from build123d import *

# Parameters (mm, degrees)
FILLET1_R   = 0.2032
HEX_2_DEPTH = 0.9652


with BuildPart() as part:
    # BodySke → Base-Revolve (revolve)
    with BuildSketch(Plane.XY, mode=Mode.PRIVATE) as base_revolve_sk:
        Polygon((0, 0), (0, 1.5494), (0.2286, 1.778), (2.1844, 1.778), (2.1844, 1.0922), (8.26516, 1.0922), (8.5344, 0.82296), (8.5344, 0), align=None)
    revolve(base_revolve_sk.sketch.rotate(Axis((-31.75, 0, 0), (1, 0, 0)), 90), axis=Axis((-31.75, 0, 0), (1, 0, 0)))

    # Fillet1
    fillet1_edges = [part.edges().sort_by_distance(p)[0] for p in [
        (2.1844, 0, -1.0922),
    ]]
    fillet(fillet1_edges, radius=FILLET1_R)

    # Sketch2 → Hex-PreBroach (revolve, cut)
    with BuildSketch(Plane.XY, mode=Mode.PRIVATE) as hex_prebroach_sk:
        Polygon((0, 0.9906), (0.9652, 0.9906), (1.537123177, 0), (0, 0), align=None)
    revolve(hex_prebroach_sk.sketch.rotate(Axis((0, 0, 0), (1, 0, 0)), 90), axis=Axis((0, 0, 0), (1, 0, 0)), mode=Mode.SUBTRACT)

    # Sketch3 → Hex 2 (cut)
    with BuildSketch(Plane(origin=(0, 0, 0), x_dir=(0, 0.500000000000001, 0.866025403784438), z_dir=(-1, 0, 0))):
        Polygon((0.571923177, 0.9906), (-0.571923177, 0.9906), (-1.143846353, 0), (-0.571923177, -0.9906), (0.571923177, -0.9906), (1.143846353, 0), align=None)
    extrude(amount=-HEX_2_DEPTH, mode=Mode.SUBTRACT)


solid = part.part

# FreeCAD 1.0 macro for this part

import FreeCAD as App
import Part
import Sketcher
Q = App.Units.Quantity


def edges_at(feature, points):
    """Names of the edges that pass closest to the given points."""
    edges = feature.Shape.Edges
    near = lambda p: min(range(len(edges)), key=lambda i: edges[i].distToShape(Part.Vertex(*p))[0])
    return sorted({f"Edge{near(p) + 1}" for p in points})


def add_polygon(sketch, points):
    """Adds a closed chain of lines whose ends are joined by coincident constraints."""
    first, n = sketch.GeometryCount, len(points)
    for a, b in zip(points, points[1:] + points[:1]):
        sketch.addGeometry(Part.LineSegment(App.Vector(*a, 0), App.Vector(*b, 0)), False)
    for i in range(n):
        sketch.addConstraint(Sketcher.Constraint("Coincident", first + i, 2, first + (i + 1) % n, 1))

doc = App.newDocument("Part")
params = doc.addObject("Spreadsheet::Sheet", "Params")
for row, (alias, value) in enumerate([
    ("sketch1_width", "0.336 in"),
    ("sketch1_width2", "0.077 in"),
    ("sketch1_height", "0.061 in"),
    ("sketch1_height2", "0.027 in"),
    ("revolution_angle", "360 deg"),
    ("fillet_radius", "0.008 in"),
    ("sketch2_width", "0.038 in"),
    ("sketch2_height", "0.039 in"),
    ("groove_angle", "360 deg"),
    ("pocket1_length", "0.038 in"),
], start=1):
    params.set(f"A{row}", alias)
    params.set(f"B{row}", "=" + value)
    params.setAlias(f"B{row}", alias)

body = doc.addObject("PartDesign::Body", "Body")

# Sketch on XY plane
sketch1 = body.newObject("Sketcher::SketchObject", "Sketch")
sketch1.AttachmentSupport = (doc.getObject("XY_Plane"), [""])
sketch1.MapMode = "FlatFace"
add_polygon(sketch1, [(0, 1.55), (0, 0), (8.53, 0), (8.53, 0.82), (8.27, 1.09), (2.18, 1.09), (2.18, 1.78), (0.23, 1.78)])  # lines 0-7
sketch1.addConstraint([
    Sketcher.Constraint("Vertical", 0),
    Sketcher.Constraint("Horizontal", 1),
    Sketcher.Constraint("Vertical", 2),
    Sketcher.Constraint("Horizontal", 4),
    Sketcher.Constraint("Vertical", 5),
    Sketcher.Constraint("Horizontal", 6),
    Sketcher.Constraint("Coincident", 0, 2, -1, 1),
    Sketcher.Constraint("Perpendicular", 3, 7),
    Sketcher.Constraint("Angle", 3, Q("135 deg")),
    Sketcher.Constraint("DistanceX", 1, 1, 1, 2, Q("0.336 in")),
    Sketcher.Constraint("DistanceX", 6, 2, 6, 1, Q("0.077 in")),
    Sketcher.Constraint("DistanceY", 0, 2, 0, 1, Q("0.061 in")),
    Sketcher.Constraint("DistanceY", 5, 1, 5, 2, Q("0.027 in")),
    Sketcher.Constraint("DistanceY", -1, 1, 5, 2, Q("0.07 in")),
    Sketcher.Constraint("DistanceX", 4, 2, 4, 1, Q("0.2394 in")),
])
sketch1.setExpression("Constraints[17]", "Params.sketch1_width")
sketch1.setExpression("Constraints[18]", "Params.sketch1_width2")
sketch1.setExpression("Constraints[19]", "Params.sketch1_height")
sketch1.setExpression("Constraints[20]", "Params.sketch1_height2")
revolution = body.newObject("PartDesign::Revolution", "Revolution")
revolution.Profile = sketch1
revolution.ReferenceAxis = (sketch1, ["H_Axis"])
revolution.setExpression("Angle", "Params.revolution_angle")
doc.recompute()

fillet = body.newObject("PartDesign::Fillet", "Fillet")
fillet.Base = (revolution, edges_at(revolution, [(2.184, 0, -1.092)]))
fillet.setExpression("Radius", "Params.fillet_radius")

# Sketch on XY plane
sketch2 = body.newObject("Sketcher::SketchObject", "Sketch001")
sketch2.AttachmentSupport = (doc.getObject("XY_Plane"), [""])
sketch2.MapMode = "FlatFace"
add_polygon(sketch2, [(1, 1), (0, 1), (0, 0), (1.5, 0)])  # lines 0-3
sketch2.addConstraint([
    Sketcher.Constraint("Horizontal", 0),
    Sketcher.Constraint("Vertical", 1),
    Sketcher.Constraint("Horizontal", 2),
    Sketcher.Constraint("Coincident", 1, 2, -1, 1),
    Sketcher.Constraint("Angle", 3, Q("120 deg")),
    Sketcher.Constraint("DistanceX", 0, 2, 0, 1, Q("0.038 in")),
    Sketcher.Constraint("DistanceY", 1, 2, 1, 1, Q("0.039 in")),
])
sketch2.setExpression("Constraints[9]", "Params.sketch2_width")
sketch2.setExpression("Constraints[10]", "Params.sketch2_height")
groove = body.newObject("PartDesign::Groove", "Groove")
groove.Profile = sketch2
groove.ReferenceAxis = (sketch2, ["H_Axis"])
groove.setExpression("Angle", "Params.groove_angle")

# Sketch on YZ plane
sketch3 = body.newObject("Sketcher::SketchObject", "Sketch002")
sketch3.AttachmentSupport = (doc.getObject("YZ_Plane"), [""])
sketch3.MapMode = "FlatFace"
add_polygon(sketch3, [(1.1, 0), (0.6, -1), (-0.6, -1), (-1.1, 0), (-0.6, 1), (0.6, 1)])  # lines 0-5
sketch3.addConstraint([
    Sketcher.Constraint("Horizontal", 1),
    Sketcher.Constraint("Horizontal", 4),
    Sketcher.Constraint("Symmetric", 0, 2, 3, 2, -1, 1),
    Sketcher.Constraint("Symmetric", 2, 2, 5, 2, -1, 1),
    Sketcher.Constraint("PointOnObject", 2, 2, -1),
    Sketcher.Constraint("Parallel", 2, 5),
    Sketcher.Constraint("Vertical", 1, 2, 3, 2),
    Sketcher.Constraint("Angle", 0, Q("-120 deg")),
    Sketcher.Constraint("DistanceY", 0, 2, -1, 1, Q("0.039 in")),
    Sketcher.Constraint("DistanceX", 1, 2, 1, 1, Q("1.143846 mm")),
])
pocket1 = body.newObject("PartDesign::Pocket", "Pocket")
pocket1.Profile = sketch3
pocket1.setExpression("Length", "Params.pocket1_length")
pocket1.Reversed = True

doc.recompute()
